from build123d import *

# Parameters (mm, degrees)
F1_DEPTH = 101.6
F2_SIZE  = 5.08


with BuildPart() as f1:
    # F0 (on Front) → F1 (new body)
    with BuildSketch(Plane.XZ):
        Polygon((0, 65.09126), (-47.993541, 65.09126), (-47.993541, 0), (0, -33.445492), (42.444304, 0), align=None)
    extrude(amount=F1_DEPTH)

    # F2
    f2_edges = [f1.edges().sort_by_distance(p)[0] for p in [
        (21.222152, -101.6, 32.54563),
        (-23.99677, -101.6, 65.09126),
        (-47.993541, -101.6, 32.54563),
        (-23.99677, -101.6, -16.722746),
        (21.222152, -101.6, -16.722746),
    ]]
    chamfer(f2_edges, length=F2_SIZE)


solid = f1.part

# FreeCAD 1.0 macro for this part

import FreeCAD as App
import Part
import Sketcher
from FreeCAD import Vector
Q = App.Units.Quantity


def edges_at(feature, points):
    """Names of the edges that pass closest to the given points."""
    edges = feature.Shape.Edges
    near = lambda p: min(range(len(edges)), key=lambda i: edges[i].distToShape(Part.Vertex(*p))[0])
    return sorted({f"Edge{near(p) + 1}" for p in points})


def add_polygon(sketch, points):
    """Adds a closed chain of lines whose ends are joined by coincident constraints."""
    first, n = sketch.GeometryCount, len(points)
    for a, b in zip(points, points[1:] + points[:1]):
        sketch.addGeometry(Part.LineSegment(App.Vector(*a, 0), App.Vector(*b, 0)), False)
    for i in range(n):
        sketch.addConstraint(Sketcher.Constraint("Coincident", first + i, 2, first + (i + 1) % n, 1))

doc = App.newDocument("Part")
body = doc.addObject("PartDesign::Body", "Body")

# Sketch on XZ plane
sketch1 = body.newObject("Sketcher::SketchObject", "Sketch")
sketch1.AttachmentSupport = (doc.getObject("XZ_Plane"), [""])
sketch1.MapMode = "FlatFace"
add_polygon(sketch1, [(0, 65.09126), (-47.993541, 65.09126), (-47.993541, 0), (0, -33.445492), (42.444304, 0)])  # lines 0-4
sketch1.addConstraint(Sketcher.Constraint("Horizontal", 0))
sketch1.addConstraint(Sketcher.Constraint("Vertical", 1))
sketch1.addConstraint(Sketcher.Constraint("PointOnObject", 1, 2, -1))
sketch1.addConstraint(Sketcher.Constraint("PointOnObject", 2, 2, -2))
sketch1.addConstraint(Sketcher.Constraint("PointOnObject", 3, 2, -1))
sketch1.addConstraint(Sketcher.Constraint("PointOnObject", 4, 2, -2))
sketch1.addConstraint(Sketcher.Constraint("Distance", 2, Q("58.4977 mm")))
sketch1.addConstraint(Sketcher.Constraint("DistanceX", 0, 2, 0, 1, Q("47.993541 mm")))
sketch1.addConstraint(Sketcher.Constraint("DistanceY", 1, 2, 1, 1, Q("65.09126 mm")))
sketch1.addConstraint(Sketcher.Constraint("Distance", 3, Q("54.038134 mm")))
pad1 = body.newObject("PartDesign::Pad", "Pad")
pad1.Profile = sketch1
pad1.Length = Q("4 in")
doc.recompute()

chamfer = body.newObject("PartDesign::Chamfer", "Chamfer")
chamfer.Base = (pad1, edges_at(pad1, [
    (21.222, -101.6, 32.546),
    (-23.997, -101.6, 65.091),
    (-47.994, -101.6, 32.546),
    (-23.997, -101.6, -16.723),
    (21.222, -101.6, -16.723),
]))
chamfer.Size = Q("0.2 in")

doc.recompute()
